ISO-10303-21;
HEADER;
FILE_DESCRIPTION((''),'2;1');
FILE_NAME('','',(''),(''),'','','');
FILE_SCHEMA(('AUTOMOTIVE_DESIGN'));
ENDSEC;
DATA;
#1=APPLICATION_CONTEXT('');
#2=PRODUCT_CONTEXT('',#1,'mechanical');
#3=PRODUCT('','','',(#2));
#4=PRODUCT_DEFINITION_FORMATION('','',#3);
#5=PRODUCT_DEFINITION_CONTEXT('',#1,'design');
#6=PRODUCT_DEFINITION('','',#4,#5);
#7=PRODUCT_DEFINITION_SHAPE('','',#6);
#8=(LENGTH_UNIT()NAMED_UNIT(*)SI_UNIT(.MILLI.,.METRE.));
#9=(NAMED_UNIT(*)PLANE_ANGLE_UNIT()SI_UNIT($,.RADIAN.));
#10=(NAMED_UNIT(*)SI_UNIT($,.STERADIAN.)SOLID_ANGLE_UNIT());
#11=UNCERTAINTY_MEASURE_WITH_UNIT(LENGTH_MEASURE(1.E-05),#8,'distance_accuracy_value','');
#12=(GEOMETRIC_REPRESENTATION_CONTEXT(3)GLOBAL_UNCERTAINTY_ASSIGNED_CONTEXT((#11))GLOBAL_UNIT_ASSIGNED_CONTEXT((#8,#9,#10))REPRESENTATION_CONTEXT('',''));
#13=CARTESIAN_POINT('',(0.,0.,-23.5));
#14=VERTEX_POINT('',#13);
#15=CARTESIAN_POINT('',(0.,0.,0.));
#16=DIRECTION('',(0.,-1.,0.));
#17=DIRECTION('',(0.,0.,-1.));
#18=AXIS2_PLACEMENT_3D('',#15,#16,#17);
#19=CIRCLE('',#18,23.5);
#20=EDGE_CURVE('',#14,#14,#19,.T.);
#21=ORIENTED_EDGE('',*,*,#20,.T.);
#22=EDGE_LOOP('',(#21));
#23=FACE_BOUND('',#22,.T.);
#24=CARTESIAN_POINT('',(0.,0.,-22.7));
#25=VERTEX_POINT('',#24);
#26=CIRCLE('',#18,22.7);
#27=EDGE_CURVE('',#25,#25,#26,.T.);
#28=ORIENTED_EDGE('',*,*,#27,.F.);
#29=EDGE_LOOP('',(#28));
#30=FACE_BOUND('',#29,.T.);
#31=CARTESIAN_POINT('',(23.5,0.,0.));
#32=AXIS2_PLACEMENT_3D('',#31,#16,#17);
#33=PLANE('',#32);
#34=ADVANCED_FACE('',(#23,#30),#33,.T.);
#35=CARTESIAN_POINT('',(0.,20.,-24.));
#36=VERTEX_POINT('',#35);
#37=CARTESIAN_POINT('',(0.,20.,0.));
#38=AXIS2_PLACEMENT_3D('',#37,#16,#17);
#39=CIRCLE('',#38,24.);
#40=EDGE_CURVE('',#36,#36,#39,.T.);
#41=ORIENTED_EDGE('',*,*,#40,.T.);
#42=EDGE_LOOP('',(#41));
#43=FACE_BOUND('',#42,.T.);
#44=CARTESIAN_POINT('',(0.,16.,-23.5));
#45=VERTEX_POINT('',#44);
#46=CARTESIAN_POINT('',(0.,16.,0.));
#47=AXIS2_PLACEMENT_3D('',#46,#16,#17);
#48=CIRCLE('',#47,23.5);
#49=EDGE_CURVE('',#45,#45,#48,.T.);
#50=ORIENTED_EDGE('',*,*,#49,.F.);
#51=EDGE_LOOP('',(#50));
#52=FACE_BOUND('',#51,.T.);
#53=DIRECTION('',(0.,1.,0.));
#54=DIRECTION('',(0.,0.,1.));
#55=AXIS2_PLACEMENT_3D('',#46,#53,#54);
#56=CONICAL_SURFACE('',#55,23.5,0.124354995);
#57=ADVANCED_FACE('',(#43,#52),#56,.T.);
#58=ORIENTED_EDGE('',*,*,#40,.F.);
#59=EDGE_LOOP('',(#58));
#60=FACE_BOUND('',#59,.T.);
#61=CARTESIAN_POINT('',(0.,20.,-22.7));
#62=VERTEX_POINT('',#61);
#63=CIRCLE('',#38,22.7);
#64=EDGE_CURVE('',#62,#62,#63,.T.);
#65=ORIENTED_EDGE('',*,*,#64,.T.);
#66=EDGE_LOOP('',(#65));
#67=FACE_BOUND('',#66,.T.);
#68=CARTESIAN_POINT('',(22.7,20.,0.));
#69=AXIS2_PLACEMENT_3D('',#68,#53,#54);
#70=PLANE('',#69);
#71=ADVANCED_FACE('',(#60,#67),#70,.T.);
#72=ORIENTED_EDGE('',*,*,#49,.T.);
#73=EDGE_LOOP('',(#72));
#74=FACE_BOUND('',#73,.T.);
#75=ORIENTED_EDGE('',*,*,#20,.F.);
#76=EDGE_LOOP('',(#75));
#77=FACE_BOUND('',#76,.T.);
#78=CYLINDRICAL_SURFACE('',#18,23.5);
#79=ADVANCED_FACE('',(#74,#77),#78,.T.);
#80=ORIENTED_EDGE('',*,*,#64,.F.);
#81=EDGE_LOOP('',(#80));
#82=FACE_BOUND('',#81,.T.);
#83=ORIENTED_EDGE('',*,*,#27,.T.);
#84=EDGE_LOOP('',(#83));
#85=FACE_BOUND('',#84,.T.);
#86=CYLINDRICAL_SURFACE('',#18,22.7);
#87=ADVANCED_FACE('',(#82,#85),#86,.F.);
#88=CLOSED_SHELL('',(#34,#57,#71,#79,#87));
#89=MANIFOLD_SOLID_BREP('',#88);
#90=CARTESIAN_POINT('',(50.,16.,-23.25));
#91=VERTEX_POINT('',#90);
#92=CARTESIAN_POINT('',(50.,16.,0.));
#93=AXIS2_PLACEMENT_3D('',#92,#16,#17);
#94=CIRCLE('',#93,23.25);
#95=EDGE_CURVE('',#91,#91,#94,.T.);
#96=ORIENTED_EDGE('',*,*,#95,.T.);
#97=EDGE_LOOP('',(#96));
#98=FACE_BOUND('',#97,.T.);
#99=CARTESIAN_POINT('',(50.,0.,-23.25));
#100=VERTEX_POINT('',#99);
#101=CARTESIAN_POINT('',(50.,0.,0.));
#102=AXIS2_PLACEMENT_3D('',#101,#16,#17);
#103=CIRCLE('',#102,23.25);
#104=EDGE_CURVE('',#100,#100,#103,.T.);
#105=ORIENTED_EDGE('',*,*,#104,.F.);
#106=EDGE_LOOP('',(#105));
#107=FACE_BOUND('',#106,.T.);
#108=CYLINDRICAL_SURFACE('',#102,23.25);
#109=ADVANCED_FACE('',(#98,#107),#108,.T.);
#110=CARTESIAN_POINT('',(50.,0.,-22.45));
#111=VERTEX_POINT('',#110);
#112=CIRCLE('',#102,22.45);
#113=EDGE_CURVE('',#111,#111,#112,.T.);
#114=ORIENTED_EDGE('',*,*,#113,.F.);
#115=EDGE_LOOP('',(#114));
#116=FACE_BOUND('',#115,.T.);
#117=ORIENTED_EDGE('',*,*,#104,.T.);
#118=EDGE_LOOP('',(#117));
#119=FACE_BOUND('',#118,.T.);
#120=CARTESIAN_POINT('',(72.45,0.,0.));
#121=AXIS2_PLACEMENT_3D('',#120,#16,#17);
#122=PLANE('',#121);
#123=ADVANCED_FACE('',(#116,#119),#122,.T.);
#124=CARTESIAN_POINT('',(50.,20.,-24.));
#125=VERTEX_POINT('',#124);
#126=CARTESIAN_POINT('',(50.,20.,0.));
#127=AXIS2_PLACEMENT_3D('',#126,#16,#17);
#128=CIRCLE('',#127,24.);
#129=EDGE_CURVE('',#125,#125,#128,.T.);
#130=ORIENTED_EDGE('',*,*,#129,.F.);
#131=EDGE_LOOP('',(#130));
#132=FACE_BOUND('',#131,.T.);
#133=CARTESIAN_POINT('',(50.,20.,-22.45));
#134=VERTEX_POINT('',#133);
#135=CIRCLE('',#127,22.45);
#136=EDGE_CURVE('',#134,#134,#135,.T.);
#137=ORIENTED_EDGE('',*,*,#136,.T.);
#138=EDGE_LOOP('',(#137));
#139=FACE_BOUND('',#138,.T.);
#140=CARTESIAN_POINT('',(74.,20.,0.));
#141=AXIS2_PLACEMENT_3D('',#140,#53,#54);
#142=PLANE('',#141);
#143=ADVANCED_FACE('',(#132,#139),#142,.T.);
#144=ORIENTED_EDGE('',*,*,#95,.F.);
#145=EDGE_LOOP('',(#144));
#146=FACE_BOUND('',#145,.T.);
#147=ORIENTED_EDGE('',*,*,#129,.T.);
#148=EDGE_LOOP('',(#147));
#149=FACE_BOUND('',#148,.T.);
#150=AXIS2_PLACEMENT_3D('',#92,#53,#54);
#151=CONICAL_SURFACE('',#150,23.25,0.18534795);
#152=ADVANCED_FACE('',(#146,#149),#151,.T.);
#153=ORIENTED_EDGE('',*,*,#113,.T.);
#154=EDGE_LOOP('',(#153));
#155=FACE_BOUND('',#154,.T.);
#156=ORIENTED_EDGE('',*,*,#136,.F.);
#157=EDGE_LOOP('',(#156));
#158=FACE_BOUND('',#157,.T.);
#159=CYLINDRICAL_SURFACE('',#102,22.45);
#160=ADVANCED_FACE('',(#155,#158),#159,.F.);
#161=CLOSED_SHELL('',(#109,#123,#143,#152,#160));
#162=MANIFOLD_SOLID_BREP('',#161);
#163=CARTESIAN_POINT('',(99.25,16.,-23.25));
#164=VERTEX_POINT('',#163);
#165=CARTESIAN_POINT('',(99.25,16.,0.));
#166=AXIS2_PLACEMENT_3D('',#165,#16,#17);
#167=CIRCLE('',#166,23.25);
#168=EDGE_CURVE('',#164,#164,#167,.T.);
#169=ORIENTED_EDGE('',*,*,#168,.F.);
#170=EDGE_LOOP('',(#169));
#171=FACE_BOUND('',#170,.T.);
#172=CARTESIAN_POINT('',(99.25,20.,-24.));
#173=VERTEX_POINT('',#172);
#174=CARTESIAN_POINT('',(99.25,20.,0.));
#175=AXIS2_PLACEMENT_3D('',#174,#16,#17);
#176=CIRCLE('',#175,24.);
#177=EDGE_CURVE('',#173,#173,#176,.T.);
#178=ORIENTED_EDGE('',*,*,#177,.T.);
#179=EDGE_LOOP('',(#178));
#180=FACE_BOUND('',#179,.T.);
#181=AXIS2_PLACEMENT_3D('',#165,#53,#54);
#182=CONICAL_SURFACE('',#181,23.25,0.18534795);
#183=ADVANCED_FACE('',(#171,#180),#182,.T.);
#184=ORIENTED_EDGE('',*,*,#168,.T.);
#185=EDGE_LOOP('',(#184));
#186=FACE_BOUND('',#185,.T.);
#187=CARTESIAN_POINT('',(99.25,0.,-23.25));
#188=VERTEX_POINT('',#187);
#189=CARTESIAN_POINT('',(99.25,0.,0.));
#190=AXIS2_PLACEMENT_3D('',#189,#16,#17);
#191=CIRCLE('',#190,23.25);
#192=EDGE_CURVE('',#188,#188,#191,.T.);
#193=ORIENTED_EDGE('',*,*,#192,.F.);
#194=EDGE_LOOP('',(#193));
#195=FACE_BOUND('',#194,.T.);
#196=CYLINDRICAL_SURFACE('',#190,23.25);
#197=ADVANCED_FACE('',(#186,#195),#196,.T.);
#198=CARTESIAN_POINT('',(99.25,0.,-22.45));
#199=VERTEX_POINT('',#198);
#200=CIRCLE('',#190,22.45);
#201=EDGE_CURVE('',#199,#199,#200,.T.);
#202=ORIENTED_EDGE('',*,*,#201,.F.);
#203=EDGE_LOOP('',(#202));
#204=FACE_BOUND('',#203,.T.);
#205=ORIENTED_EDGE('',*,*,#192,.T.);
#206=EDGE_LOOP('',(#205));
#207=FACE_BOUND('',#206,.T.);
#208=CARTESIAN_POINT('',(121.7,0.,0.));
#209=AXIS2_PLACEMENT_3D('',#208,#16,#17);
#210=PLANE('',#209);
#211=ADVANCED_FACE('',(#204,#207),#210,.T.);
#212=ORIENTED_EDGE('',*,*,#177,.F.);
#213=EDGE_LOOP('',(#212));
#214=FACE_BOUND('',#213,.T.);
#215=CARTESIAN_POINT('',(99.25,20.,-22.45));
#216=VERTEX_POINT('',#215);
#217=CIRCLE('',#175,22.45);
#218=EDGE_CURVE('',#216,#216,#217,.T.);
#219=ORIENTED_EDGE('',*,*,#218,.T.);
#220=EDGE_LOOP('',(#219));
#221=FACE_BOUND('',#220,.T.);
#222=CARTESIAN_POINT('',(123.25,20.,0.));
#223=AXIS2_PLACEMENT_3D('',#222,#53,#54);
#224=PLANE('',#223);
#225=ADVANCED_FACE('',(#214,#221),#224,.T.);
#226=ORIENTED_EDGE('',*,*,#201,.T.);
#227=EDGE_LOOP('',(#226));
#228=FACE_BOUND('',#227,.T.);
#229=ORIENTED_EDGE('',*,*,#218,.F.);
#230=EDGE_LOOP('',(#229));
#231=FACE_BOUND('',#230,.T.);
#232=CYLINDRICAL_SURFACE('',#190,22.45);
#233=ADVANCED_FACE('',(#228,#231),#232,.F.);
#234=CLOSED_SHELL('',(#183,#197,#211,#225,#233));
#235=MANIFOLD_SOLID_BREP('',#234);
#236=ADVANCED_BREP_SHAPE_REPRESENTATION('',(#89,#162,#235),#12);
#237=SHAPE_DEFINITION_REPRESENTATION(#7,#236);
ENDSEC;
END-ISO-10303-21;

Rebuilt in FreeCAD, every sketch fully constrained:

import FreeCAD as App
import Part
import Sketcher

V = App.Vector

doc = App.newDocument("Part")
body = doc.addObject("PartDesign::Body", "Body")

sketch1 = body.newObject("Sketcher::SketchObject", "Sketch")
sketch1.AttachmentSupport = (doc.getObject("XY_Plane"), [""])
sketch1.MapMode = "FlatFace"
sketch1.addGeometry(Part.LineSegment(V(22.7, 20, 0), V(22.7, 0, 0)), False)
sketch1.addGeometry(Part.LineSegment(V(22.7, 0, 0), V(23.5, 0, 0)), False)
sketch1.addGeometry(Part.LineSegment(V(23.5, 0, 0), V(23.5, 16, 0)), False)
sketch1.addGeometry(Part.LineSegment(V(23.5, 16, 0), V(24, 20, 0)), False)
sketch1.addGeometry(Part.LineSegment(V(24, 20, 0), V(22.7, 20, 0)), False)
sketch1.addConstraint(Sketcher.Constraint("Coincident", 0, 2, 1, 1))
sketch1.addConstraint(Sketcher.Constraint("Coincident", 1, 2, 2, 1))
sketch1.addConstraint(Sketcher.Constraint("Coincident", 2, 2, 3, 1))
sketch1.addConstraint(Sketcher.Constraint("Coincident", 3, 2, 4, 1))
sketch1.addConstraint(Sketcher.Constraint("Coincident", 4, 2, 0, 1))
sketch1.addConstraint(Sketcher.Constraint("Vertical", 0))
sketch1.addConstraint(Sketcher.Constraint("Horizontal", 1))
sketch1.addConstraint(Sketcher.Constraint("Vertical", 2))
sketch1.addConstraint(Sketcher.Constraint("Horizontal", 4))
sketch1.addConstraint(Sketcher.Constraint("PointOnObject", 0, 2, -1))
sketch1.addConstraint(Sketcher.Constraint("DistanceY", 0, 2, 0, 1, 20.0))
sketch1.addConstraint(Sketcher.Constraint("DistanceY", 2, 1, 2, 2, 16.0))
sketch1.addConstraint(Sketcher.Constraint("DistanceX", 1, 1, 1, 2, 0.8))
sketch1.addConstraint(Sketcher.Constraint("DistanceX", 4, 2, 4, 1, 1.3))
sketch1.addConstraint(Sketcher.Constraint("DistanceX", -1, 1, 3, 2, 24.0))
revolution = body.newObject("PartDesign::Revolution", "Revolution")
revolution.Profile = sketch1
revolution.ReferenceAxis = (sketch1, ["V_Axis"])
revolution.Angle = 360
body2 = doc.addObject("PartDesign::Body", "Body001")

sketch2 = body2.newObject("Sketcher::SketchObject", "Sketch001")
sketch2.AttachmentSupport = (doc.getObject("XY_Plane001"), [""])
sketch2.MapMode = "FlatFace"
sketch2.addGeometry(Part.LineSegment(V(73.2, 0, 0), V(73.2, 16, 0)), False)
sketch2.addGeometry(Part.LineSegment(V(73.2, 16, 0), V(74, 20, 0)), False)
sketch2.addGeometry(Part.LineSegment(V(74, 20, 0), V(72.5, 20, 0)), False)
sketch2.addGeometry(Part.LineSegment(V(72.5, 20, 0), V(72.5, 0, 0)), False)
sketch2.addGeometry(Part.LineSegment(V(72.5, 0, 0), V(73.2, 0, 0)), False)
sketch2.addGeometry(Part.LineSegment(V(50, 0, 0), V(50, 20, 0)), True)
sketch2.addConstraint(Sketcher.Constraint("Coincident", 0, 2, 1, 1))
sketch2.addConstraint(Sketcher.Constraint("Coincident", 1, 2, 2, 1))
sketch2.addConstraint(Sketcher.Constraint("Coincident", 2, 2, 3, 1))
sketch2.addConstraint(Sketcher.Constraint("Coincident", 3, 2, 4, 1))
sketch2.addConstraint(Sketcher.Constraint("Coincident", 4, 2, 0, 1))
sketch2.addConstraint(Sketcher.Constraint("Vertical", 0))
sketch2.addConstraint(Sketcher.Constraint("Horizontal", 2))
sketch2.addConstraint(Sketcher.Constraint("Vertical", 3))
sketch2.addConstraint(Sketcher.Constraint("Horizontal", 4))
sketch2.addConstraint(Sketcher.Constraint("Vertical", 5))
sketch2.addConstraint(Sketcher.Constraint("PointOnObject", 3, 2, -1))
sketch2.addConstraint(Sketcher.Constraint("PointOnObject", 5, 1, -1))
sketch2.addConstraint(Sketcher.Constraint("Horizontal", 2, 2, 5, 2))
sketch2.addConstraint(Sketcher.Constraint("DistanceY", 0, 1, 0, 2, 16.0))
sketch2.addConstraint(Sketcher.Constraint("DistanceY", 3, 2, 3, 1, 20.0))
sketch2.addConstraint(Sketcher.Constraint("DistanceX", 4, 1, 4, 2, 0.8))
sketch2.addConstraint(Sketcher.Constraint("DistanceX", -1, 1, 1, 2, 74.0))
sketch2.addConstraint(Sketcher.Constraint("DistanceX", -1, 1, 5, 1, 50.0))
sketch2.addConstraint(Sketcher.Constraint("DistanceX", 2, 2, 2, 1, 1.55))
revolution2 = body2.newObject("PartDesign::Revolution", "Revolution001")
revolution2.Profile = sketch2
revolution2.ReferenceAxis = (sketch2, ["Axis0"])
revolution2.Angle = 360
body3 = doc.addObject("PartDesign::Body", "Body002")

sketch3 = body3.newObject("Sketcher::SketchObject", "Sketch002")
sketch3.AttachmentSupport = (doc.getObject("XY_Plane002"), [""])
sketch3.MapMode = "FlatFace"
sketch3.addGeometry(Part.LineSegment(V(122.5, 0, 0), V(122.5, 16, 0)), False)
sketch3.addGeometry(Part.LineSegment(V(122.5, 16, 0), V(123.2, 20, 0)), False)
sketch3.addGeometry(Part.LineSegment(V(123.2, 20, 0), V(121.7, 20, 0)), False)
sketch3.addGeometry(Part.LineSegment(V(121.7, 20, 0), V(121.7, 0, 0)), False)
sketch3.addGeometry(Part.LineSegment(V(121.7, 0, 0), V(122.5, 0, 0)), False)
sketch3.addGeometry(Part.LineSegment(V(99.2, 0, 0), V(99.2, 20, 0)), True)
sketch3.addConstraint(Sketcher.Constraint("Coincident", 0, 2, 1, 1))
sketch3.addConstraint(Sketcher.Constraint("Coincident", 1, 2, 2, 1))
sketch3.addConstraint(Sketcher.Constraint("Coincident", 2, 2, 3, 1))
sketch3.addConstraint(Sketcher.Constraint("Coincident", 3, 2, 4, 1))
sketch3.addConstraint(Sketcher.Constraint("Coincident", 4, 2, 0, 1))
sketch3.addConstraint(Sketcher.Constraint("Vertical", 0))
sketch3.addConstraint(Sketcher.Constraint("Horizontal", 2))
sketch3.addConstraint(Sketcher.Constraint("Vertical", 3))
sketch3.addConstraint(Sketcher.Constraint("Horizontal", 4))
sketch3.addConstraint(Sketcher.Constraint("Vertical", 5))
sketch3.addConstraint(Sketcher.Constraint("PointOnObject", 3, 2, -1))
sketch3.addConstraint(Sketcher.Constraint("PointOnObject", 5, 1, -1))
sketch3.addConstraint(Sketcher.Constraint("Horizontal", 2, 2, 5, 2))
sketch3.addConstraint(Sketcher.Constraint("DistanceY", 0, 1, 0, 2, 16.0))
sketch3.addConstraint(Sketcher.Constraint("DistanceY", 3, 2, 3, 1, 20.0))
sketch3.addConstraint(Sketcher.Constraint("DistanceX", 4, 1, 4, 2, 0.8))
sketch3.addConstraint(Sketcher.Constraint("DistanceX", 5, 1, 1, 2, 24.0))
sketch3.addConstraint(Sketcher.Constraint("DistanceX", 2, 2, 2, 1, 1.55))
sketch3.addConstraint(Sketcher.Constraint("DistanceX", -1, 1, 0, 2, 122.5))
revolution3 = body3.newObject("PartDesign::Revolution", "Revolution002")
revolution3.Profile = sketch3
revolution3.ReferenceAxis = (sketch3, ["Axis0"])
revolution3.Angle = 360

doc.recompute()
